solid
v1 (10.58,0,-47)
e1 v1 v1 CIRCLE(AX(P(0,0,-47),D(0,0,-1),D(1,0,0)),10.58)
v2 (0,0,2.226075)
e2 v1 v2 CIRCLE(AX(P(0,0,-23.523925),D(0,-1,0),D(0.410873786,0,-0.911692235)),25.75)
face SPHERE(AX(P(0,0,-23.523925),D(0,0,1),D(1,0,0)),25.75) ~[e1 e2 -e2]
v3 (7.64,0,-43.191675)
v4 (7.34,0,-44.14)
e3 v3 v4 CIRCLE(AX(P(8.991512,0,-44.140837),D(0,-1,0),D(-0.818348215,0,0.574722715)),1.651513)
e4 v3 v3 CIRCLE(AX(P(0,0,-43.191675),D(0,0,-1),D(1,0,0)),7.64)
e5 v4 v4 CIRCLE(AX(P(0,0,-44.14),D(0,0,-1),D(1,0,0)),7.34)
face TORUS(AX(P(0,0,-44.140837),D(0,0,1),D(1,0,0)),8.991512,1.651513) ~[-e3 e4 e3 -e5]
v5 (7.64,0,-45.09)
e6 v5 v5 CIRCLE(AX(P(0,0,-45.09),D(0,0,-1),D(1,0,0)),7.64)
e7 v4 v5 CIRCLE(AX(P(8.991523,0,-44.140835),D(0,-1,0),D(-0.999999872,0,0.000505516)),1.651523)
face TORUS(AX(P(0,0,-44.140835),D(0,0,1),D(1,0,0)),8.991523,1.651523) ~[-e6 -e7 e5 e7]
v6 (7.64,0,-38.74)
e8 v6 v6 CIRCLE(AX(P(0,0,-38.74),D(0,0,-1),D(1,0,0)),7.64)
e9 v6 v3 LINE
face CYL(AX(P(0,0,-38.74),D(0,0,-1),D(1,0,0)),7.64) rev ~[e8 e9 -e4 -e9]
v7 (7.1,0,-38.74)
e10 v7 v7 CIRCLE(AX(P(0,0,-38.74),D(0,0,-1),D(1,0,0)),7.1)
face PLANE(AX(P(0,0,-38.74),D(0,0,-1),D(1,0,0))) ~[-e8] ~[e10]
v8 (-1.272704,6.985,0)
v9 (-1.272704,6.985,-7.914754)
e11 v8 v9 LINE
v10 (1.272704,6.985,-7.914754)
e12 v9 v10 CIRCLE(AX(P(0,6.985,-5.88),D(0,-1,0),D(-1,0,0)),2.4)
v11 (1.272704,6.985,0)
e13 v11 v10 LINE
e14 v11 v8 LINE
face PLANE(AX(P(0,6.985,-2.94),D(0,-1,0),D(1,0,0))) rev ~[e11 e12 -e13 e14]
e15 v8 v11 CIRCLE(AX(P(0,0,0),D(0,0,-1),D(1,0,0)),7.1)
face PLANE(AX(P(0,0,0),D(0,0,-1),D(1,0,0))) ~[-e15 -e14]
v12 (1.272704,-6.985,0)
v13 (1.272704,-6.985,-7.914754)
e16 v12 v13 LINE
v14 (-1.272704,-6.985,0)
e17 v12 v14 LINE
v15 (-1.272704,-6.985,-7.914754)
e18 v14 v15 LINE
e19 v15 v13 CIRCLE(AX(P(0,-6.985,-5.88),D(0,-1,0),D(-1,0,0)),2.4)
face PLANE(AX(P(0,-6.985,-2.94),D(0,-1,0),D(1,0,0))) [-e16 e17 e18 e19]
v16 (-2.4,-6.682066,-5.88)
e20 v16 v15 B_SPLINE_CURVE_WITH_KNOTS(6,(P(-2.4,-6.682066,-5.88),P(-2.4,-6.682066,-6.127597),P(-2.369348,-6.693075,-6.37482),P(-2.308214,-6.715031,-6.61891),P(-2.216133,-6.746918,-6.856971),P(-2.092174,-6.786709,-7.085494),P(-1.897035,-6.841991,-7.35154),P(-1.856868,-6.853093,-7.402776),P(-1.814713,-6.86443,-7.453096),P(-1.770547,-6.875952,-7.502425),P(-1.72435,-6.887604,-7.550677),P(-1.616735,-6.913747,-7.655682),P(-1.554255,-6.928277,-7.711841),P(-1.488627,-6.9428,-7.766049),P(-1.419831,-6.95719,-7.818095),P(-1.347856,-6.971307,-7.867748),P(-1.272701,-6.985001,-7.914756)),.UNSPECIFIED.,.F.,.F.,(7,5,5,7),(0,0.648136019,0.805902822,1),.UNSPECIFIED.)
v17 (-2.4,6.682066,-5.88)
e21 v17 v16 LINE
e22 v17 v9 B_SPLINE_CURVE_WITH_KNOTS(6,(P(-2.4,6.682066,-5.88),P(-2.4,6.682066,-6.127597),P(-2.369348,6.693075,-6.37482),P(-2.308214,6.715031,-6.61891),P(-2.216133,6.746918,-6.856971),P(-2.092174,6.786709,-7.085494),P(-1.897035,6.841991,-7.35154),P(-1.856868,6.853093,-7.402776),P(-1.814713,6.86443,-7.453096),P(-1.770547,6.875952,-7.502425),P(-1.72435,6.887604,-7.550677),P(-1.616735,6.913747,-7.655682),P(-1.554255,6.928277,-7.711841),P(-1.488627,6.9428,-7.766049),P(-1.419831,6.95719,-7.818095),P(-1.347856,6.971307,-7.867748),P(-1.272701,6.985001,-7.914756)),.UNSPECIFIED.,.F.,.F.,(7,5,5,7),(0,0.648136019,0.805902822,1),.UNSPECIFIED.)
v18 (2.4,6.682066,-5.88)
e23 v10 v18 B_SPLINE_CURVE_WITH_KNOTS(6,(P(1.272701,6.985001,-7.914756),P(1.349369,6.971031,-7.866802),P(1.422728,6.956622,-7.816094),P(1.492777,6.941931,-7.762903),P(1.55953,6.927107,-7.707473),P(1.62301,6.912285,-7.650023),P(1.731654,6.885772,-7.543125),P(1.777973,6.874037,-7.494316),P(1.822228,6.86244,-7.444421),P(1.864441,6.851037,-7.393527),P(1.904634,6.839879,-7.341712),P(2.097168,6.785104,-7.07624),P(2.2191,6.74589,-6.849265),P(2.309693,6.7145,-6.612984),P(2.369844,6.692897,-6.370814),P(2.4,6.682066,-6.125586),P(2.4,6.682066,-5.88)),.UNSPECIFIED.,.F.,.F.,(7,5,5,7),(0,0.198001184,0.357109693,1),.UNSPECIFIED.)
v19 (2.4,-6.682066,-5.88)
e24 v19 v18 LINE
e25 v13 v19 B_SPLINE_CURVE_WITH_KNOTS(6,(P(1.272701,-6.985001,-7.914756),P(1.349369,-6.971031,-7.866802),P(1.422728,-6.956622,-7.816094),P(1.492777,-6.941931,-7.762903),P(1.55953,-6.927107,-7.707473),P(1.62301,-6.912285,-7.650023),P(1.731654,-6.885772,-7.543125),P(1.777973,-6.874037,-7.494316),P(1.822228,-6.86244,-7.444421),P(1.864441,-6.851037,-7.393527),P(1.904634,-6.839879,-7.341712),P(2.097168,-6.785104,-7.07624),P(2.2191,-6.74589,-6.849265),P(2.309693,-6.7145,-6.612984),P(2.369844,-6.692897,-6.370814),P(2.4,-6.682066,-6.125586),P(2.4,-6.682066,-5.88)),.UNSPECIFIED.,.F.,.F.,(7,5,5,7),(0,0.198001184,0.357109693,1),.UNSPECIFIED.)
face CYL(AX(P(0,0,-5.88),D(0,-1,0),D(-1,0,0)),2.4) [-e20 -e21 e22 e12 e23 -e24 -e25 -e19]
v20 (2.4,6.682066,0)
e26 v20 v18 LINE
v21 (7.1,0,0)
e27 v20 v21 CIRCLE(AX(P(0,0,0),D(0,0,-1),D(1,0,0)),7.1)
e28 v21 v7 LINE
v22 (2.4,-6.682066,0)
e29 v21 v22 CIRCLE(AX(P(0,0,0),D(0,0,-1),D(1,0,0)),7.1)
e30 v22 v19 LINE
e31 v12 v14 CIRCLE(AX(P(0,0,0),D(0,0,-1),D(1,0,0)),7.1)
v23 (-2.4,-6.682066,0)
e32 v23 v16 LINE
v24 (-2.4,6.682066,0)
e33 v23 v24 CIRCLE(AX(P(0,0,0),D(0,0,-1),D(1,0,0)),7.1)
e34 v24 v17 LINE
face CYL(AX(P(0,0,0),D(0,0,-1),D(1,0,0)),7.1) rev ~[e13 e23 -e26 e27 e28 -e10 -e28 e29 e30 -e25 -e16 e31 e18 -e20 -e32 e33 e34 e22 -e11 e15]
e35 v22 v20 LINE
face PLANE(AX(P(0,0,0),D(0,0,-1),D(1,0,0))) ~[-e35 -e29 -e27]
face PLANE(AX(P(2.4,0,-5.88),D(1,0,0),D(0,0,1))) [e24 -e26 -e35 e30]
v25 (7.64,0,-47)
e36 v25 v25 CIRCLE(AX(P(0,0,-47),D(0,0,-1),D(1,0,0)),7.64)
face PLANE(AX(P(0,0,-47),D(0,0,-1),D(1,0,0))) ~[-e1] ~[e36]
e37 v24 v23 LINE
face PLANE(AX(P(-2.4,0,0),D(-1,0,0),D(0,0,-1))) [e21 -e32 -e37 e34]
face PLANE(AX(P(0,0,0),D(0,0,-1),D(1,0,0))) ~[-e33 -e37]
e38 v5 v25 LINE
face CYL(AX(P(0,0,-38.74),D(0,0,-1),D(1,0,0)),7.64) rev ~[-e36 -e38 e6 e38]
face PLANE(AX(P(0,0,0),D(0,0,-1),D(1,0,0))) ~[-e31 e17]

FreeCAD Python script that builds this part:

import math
import FreeCAD as App
import Part
import Sketcher

V = App.Vector

doc = App.newDocument("Part")
body = doc.addObject("PartDesign::Body", "Body")

sketch1 = body.newObject("Sketcher::SketchObject", "Sketch")
sketch1.AttachmentSupport = (doc.getObject("XZ_Plane"), [""])
sketch1.MapMode = "FlatFace"
sketch1.addGeometry(Part.LineSegment(V(2.4, 0, 0), V(-2.4, 0, 0)), False)
sketch1.addGeometry(Part.LineSegment(V(-2.4, 0, 0), V(-2.4, -5.9, 0)), False)
sketch1.addGeometry(Part.ArcOfCircle(Part.Circle(V(0, -5.9, 0), V(0, 0, 1), 2.4), math.radians(180), math.radians(360)), False)
sketch1.addGeometry(Part.LineSegment(V(2.4, -5.9, 0), V(2.4, 0, 0)), False)
sketch1.addConstraint(Sketcher.Constraint("Coincident", 0, 2, 1, 1))
sketch1.addConstraint(Sketcher.Constraint("Tangent", 1, 2, 2, 1))
sketch1.addConstraint(Sketcher.Constraint("Tangent", 2, 2, 3, 1))
sketch1.addConstraint(Sketcher.Constraint("Coincident", 3, 2, 0, 1))
sketch1.addConstraint(Sketcher.Constraint("Horizontal", 0))
sketch1.addConstraint(Sketcher.Constraint("Vertical", 1))
sketch1.addConstraint(Sketcher.Constraint("Vertical", 3))
sketch1.addConstraint(Sketcher.Constraint("Symmetric", 0, 2, 3, 2, -1, 1))
sketch1.addConstraint(Sketcher.Constraint("Radius", 2, 2.4))
sketch1.addConstraint(Sketcher.Constraint("DistanceY", 1, 2, 1, 1, 5.88))
pad1 = body.newObject("PartDesign::Pad", "Pad")
pad1.Profile = sketch1
pad1.Length = 13.97
pad1.Midplane = True

sketch2 = body.newObject("Sketcher::SketchObject", "Sketch001")
sketch2.AttachmentSupport = (doc.getObject("XZ_Plane"), [""])
sketch2.MapMode = "FlatFace"
sketch2.addGeometry(Part.LineSegment(V(0, 2.2, 0), V(0, 0, 0)), False)
sketch2.addGeometry(Part.LineSegment(V(0, 0, 0), V(7.1, 0, 0)), False)
sketch2.addGeometry(Part.LineSegment(V(7.1, 0, 0), V(7.1, -38.7, 0)), False)
sketch2.addGeometry(Part.LineSegment(V(7.1, -38.7, 0), V(7.6, -38.7, 0)), False)
sketch2.addGeometry(Part.LineSegment(V(7.6, -38.7, 0), V(7.6, -43.2, 0)), False)
sketch2.addGeometry(Part.ArcOfCircle(Part.Circle(V(9, -44.1, 0), V(0, 0, 1), 1.7), math.radians(145), math.radians(180)), False)
sketch2.addGeometry(Part.ArcOfCircle(Part.Circle(V(9, -44.1, 0), V(0, 0, 1), 1.7), math.radians(180), math.radians(215)), False)
sketch2.addGeometry(Part.LineSegment(V(7.6, -45.1, 0), V(7.6, -47, 0)), False)
sketch2.addGeometry(Part.LineSegment(V(7.6, -47, 0), V(10.6, -47, 0)), False)
sketch2.addGeometry(Part.ArcOfCircle(Part.Circle(V(0, -23.5, 0), V(0, 0, 1), 25.7), math.radians(-66), math.radians(90)), False)
sketch2.addConstraint(Sketcher.Constraint("Coincident", 0, 2, 1, 1))
sketch2.addConstraint(Sketcher.Constraint("Coincident", 1, 2, 2, 1))
sketch2.addConstraint(Sketcher.Constraint("Coincident", 2, 2, 3, 1))
sketch2.addConstraint(Sketcher.Constraint("Coincident", 3, 2, 4, 1))
sketch2.addConstraint(Sketcher.Constraint("Coincident", 4, 2, 5, 1))
sketch2.addConstraint(Sketcher.Constraint("Tangent", 5, 2, 6, 1))
sketch2.addConstraint(Sketcher.Constraint("Coincident", 6, 2, 7, 1))
sketch2.addConstraint(Sketcher.Constraint("Coincident", 7, 2, 8, 1))
sketch2.addConstraint(Sketcher.Constraint("Coincident", 8, 2, 9, 1))
sketch2.addConstraint(Sketcher.Constraint("Coincident", 9, 2, 0, 1))
sketch2.addConstraint(Sketcher.Constraint("Vertical", 0))
sketch2.addConstraint(Sketcher.Constraint("Horizontal", 1))
sketch2.addConstraint(Sketcher.Constraint("Vertical", 2))
sketch2.addConstraint(Sketcher.Constraint("Horizontal", 3))
sketch2.addConstraint(Sketcher.Constraint("Vertical", 4))
sketch2.addConstraint(Sketcher.Constraint("Vertical", 7))
sketch2.addConstraint(Sketcher.Constraint("Horizontal", 8))
sketch2.addConstraint(Sketcher.Constraint("Coincident", 0, 2, -1, 1))
sketch2.addConstraint(Sketcher.Constraint("PointOnObject", 9, 3, -2))
sketch2.addConstraint(Sketcher.Constraint("Vertical", 4, 2, 6, 2))
sketch2.addConstraint(Sketcher.Constraint("Radius", 9, 25.75))
sketch2.addConstraint(Sketcher.Constraint("DistanceX", 1, 1, 1, 2, 7.1))
sketch2.addConstraint(Sketcher.Constraint("DistanceY", 7, 2, -1, 1, 47.0))
sketch2.addConstraint(Sketcher.Constraint("DistanceX", 3, 1, 3, 2, 0.54))
sketch2.addConstraint(Sketcher.Constraint("DistanceX", 8, 1, 8, 2, 2.94))
sketch2.addConstraint(Sketcher.Constraint("DistanceY", 2, 2, 2, 1, 38.74))
sketch2.addConstraint(Sketcher.Constraint("DistanceY", 7, 2, 7, 1, 1.91))
sketch2.addConstraint(Sketcher.Constraint("DistanceX", 5, 2, 4, 2, 0.3))
sketch2.addConstraint(Sketcher.Constraint("DistanceY", 5, 2, 2, 2, 5.4))
sketch2.addConstraint(Sketcher.Constraint("Radius", 5, 1.651513))
sketch2.addConstraint(Sketcher.Constraint("Radius", 6, 1.651523))
revolution = body.newObject("PartDesign::Revolution", "Revolution")
revolution.Profile = sketch2
revolution.ReferenceAxis = (sketch2, ["V_Axis"])
revolution.Angle = 360

doc.recompute()
